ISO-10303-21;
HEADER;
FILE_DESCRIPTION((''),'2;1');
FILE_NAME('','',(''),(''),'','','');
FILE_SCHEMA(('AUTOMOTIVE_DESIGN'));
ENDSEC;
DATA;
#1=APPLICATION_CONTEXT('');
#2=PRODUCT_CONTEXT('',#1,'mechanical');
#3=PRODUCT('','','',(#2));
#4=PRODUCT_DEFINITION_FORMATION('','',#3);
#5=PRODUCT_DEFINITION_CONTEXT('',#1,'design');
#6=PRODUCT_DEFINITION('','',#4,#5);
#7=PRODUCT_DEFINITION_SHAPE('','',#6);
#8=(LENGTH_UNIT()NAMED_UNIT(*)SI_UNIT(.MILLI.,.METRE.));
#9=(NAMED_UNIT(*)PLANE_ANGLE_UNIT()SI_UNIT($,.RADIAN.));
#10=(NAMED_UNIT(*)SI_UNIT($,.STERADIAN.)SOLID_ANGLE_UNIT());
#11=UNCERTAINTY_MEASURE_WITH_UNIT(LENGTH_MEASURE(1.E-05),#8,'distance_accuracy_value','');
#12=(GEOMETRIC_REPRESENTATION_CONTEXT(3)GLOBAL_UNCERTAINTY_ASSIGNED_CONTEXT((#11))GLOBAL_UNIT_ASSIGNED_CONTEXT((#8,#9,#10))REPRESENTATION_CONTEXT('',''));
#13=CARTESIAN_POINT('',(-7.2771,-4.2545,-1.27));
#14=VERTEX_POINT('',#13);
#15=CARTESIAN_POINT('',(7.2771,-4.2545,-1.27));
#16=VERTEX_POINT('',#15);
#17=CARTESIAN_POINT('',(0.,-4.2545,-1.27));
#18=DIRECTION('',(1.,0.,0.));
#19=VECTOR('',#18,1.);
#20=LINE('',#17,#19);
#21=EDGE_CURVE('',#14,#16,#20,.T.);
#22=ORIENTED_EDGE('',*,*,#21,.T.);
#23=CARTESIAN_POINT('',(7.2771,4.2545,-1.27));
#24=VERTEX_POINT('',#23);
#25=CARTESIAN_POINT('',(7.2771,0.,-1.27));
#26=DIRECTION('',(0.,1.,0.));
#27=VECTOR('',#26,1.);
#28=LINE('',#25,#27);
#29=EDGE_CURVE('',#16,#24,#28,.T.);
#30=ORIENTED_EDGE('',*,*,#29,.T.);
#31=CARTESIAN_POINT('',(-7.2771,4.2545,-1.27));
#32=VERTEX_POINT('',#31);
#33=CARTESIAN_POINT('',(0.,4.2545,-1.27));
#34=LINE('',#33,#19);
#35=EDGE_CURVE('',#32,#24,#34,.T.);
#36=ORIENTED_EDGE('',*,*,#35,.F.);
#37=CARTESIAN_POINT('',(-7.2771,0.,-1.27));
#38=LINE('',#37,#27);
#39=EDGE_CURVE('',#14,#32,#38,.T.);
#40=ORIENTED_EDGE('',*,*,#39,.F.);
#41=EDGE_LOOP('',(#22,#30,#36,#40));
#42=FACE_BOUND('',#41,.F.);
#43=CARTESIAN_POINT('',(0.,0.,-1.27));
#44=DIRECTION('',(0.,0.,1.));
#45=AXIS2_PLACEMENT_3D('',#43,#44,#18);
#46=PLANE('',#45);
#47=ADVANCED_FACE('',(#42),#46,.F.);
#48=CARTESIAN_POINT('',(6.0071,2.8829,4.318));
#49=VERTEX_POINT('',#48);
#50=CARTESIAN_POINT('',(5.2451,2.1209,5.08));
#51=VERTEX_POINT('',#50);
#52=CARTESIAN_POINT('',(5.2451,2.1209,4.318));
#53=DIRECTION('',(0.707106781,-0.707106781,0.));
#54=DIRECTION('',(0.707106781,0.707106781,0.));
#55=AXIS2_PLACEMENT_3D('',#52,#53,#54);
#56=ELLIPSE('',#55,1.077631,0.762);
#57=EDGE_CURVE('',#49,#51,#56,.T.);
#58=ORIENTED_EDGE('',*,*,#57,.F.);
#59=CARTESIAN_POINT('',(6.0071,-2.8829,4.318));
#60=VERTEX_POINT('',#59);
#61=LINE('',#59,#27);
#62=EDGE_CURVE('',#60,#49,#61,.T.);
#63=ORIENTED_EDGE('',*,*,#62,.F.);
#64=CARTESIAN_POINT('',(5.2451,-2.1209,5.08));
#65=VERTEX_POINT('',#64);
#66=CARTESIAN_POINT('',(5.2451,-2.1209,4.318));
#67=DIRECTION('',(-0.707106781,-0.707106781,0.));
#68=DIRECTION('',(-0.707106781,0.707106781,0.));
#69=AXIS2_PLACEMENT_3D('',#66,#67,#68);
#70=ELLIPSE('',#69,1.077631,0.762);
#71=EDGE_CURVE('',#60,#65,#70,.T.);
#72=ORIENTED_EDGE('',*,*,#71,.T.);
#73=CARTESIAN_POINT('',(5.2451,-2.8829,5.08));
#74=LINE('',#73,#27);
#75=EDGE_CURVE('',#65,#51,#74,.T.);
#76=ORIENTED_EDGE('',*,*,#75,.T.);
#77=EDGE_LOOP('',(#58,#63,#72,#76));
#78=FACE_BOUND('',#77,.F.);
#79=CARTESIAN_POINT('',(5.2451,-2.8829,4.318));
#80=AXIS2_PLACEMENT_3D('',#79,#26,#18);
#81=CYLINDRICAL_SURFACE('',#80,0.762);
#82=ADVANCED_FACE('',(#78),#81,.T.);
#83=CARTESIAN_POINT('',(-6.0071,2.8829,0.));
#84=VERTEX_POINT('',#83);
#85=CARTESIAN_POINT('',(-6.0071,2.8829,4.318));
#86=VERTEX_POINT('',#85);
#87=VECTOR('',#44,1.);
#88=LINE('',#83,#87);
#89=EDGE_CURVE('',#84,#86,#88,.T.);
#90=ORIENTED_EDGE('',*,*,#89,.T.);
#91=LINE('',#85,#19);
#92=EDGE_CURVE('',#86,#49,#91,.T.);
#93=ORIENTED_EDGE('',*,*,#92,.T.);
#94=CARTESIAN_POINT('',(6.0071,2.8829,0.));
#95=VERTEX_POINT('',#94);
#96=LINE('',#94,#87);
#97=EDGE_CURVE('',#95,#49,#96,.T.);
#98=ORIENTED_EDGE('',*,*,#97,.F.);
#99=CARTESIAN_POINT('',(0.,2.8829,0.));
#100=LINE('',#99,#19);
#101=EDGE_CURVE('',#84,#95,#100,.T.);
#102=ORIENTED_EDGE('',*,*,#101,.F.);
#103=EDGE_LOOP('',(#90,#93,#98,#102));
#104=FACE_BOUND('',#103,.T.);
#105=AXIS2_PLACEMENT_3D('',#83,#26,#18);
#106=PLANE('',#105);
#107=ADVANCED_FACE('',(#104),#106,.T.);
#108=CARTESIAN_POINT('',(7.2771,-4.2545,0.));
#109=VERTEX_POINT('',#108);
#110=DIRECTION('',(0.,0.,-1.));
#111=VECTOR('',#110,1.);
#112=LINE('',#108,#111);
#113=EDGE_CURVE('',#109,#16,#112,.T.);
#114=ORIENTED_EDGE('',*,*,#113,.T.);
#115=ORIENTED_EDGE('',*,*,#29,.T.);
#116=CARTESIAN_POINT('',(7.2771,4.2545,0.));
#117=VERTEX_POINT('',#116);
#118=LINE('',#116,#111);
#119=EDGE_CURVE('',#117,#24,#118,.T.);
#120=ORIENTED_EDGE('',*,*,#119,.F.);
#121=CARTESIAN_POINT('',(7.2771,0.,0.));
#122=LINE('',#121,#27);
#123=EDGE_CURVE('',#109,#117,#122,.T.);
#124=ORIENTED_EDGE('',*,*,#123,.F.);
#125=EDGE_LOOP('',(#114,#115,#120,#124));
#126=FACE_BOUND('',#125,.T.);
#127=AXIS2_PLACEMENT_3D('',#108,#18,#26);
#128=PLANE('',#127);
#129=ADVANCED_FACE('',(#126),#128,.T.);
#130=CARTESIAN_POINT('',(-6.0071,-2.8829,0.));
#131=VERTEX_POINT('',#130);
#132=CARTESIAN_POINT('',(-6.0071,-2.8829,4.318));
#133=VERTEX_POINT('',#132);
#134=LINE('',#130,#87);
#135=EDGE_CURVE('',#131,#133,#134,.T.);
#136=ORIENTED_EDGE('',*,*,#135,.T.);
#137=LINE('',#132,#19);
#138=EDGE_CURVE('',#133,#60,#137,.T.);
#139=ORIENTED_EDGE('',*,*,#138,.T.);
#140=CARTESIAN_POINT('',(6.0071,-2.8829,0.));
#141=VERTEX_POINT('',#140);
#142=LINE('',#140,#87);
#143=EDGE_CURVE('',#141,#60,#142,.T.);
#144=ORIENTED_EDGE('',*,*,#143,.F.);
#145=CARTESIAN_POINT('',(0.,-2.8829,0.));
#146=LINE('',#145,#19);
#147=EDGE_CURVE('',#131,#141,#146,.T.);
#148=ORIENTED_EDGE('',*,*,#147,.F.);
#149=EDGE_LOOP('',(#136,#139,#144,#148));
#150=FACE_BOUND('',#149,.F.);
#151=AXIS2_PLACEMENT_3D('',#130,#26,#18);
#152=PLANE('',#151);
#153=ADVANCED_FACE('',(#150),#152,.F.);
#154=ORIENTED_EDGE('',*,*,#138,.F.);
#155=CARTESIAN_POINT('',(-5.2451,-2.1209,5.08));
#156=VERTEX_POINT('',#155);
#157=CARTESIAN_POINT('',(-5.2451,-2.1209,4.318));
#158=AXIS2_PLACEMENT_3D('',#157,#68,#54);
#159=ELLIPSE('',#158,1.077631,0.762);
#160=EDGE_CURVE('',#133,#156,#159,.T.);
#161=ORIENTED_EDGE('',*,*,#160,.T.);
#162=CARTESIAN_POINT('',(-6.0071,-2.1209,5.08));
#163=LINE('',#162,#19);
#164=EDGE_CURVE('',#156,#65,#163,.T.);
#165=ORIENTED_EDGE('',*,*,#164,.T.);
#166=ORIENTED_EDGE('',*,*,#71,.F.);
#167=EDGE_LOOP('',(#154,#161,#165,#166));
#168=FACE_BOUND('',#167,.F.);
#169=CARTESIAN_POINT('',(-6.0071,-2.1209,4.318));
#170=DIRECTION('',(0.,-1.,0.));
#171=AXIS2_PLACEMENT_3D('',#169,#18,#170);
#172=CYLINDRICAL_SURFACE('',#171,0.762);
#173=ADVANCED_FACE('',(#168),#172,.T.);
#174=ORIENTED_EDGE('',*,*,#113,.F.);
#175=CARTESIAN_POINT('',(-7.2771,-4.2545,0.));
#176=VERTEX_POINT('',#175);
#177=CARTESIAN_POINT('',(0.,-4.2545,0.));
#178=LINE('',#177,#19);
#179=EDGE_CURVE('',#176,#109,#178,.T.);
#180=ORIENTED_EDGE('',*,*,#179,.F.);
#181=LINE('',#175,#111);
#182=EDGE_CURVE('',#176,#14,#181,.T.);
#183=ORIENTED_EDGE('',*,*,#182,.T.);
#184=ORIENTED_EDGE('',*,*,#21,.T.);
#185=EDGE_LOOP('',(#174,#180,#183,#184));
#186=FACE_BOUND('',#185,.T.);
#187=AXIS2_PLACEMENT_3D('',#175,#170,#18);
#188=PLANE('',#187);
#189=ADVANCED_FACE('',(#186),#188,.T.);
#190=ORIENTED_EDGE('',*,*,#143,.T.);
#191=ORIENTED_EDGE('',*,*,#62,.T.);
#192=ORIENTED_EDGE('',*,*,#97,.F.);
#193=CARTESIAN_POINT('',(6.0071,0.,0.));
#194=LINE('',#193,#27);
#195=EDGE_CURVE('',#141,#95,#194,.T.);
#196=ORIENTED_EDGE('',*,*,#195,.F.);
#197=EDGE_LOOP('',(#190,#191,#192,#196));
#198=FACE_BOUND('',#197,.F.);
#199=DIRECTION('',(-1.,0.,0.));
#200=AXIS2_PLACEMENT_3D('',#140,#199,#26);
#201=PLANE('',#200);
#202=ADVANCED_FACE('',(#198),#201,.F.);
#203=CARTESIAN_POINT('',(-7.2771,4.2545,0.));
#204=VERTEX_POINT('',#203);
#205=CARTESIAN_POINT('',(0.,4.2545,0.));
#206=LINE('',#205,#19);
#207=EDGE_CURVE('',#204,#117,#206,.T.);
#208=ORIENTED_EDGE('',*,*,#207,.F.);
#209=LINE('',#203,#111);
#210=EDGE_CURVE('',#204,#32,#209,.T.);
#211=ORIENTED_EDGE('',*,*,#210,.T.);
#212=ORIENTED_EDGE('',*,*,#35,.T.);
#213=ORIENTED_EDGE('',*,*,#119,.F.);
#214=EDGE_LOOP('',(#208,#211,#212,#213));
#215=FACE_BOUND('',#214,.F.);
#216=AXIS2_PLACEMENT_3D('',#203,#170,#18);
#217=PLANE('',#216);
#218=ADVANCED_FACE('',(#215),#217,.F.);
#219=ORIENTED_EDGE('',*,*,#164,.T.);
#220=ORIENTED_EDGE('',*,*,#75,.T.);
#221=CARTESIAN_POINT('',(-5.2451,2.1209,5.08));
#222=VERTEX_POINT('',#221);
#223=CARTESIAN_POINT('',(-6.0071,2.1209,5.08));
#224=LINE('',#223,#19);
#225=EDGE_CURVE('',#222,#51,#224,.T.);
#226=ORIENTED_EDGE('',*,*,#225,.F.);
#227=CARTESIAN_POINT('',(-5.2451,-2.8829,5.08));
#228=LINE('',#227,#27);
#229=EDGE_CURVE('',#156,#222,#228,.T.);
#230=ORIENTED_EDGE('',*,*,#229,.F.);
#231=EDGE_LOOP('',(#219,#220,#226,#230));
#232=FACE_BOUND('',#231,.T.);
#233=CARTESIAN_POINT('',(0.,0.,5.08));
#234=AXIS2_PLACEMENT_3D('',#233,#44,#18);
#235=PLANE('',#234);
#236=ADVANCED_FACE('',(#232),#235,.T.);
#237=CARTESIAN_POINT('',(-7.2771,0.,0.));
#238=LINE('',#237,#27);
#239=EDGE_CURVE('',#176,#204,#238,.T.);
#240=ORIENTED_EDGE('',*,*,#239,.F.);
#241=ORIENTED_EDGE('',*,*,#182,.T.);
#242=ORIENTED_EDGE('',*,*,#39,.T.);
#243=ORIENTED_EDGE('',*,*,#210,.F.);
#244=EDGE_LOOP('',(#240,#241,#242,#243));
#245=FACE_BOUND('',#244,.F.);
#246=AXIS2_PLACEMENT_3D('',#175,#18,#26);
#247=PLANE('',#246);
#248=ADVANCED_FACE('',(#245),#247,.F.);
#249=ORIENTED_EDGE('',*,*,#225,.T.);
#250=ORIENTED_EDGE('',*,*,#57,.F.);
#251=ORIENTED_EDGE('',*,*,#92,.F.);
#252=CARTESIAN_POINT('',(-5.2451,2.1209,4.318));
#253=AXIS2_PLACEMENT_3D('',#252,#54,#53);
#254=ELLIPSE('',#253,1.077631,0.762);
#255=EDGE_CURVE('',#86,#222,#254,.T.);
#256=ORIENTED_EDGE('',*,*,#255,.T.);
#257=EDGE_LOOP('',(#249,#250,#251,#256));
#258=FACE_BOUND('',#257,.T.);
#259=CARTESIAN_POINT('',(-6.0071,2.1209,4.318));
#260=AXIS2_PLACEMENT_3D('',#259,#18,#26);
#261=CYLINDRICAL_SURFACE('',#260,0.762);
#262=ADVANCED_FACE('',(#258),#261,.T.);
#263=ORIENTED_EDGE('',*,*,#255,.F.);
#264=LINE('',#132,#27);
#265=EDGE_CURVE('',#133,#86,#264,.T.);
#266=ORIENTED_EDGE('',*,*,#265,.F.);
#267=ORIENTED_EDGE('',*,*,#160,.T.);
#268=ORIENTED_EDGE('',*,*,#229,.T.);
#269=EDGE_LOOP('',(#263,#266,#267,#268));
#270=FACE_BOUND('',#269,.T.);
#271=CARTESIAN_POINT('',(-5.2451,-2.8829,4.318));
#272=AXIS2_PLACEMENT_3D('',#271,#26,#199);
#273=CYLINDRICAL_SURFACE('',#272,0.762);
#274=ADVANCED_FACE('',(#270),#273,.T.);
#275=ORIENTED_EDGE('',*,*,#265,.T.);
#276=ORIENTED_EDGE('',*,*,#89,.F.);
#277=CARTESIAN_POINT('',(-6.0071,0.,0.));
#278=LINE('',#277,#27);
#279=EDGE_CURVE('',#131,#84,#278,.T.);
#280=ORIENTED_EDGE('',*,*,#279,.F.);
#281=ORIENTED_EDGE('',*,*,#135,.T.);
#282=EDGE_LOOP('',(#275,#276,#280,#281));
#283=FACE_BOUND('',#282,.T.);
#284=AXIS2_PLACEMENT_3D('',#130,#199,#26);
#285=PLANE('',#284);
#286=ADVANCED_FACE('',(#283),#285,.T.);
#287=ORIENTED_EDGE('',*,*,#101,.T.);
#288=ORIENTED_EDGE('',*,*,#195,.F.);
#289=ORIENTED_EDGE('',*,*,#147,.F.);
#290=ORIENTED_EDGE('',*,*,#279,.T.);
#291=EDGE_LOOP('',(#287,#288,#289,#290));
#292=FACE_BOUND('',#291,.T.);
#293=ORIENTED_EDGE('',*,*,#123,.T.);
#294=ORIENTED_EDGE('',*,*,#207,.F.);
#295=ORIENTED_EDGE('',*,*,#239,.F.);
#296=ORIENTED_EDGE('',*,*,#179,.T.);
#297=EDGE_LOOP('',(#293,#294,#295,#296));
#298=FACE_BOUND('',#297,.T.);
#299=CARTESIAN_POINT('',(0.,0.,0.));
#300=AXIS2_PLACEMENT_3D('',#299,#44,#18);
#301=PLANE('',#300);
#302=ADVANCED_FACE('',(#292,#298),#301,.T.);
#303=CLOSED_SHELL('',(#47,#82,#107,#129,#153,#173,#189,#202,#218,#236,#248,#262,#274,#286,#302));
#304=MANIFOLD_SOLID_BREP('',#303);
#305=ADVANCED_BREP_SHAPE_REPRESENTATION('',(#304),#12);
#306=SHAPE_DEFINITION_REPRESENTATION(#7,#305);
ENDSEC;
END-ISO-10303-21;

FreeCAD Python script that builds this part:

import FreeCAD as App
import Part
import Sketcher
Q = App.Units.Quantity


def edges_at(feature, points):
    """Names of the edges that pass closest to the given points."""
    edges = feature.Shape.Edges
    near = lambda p: min(range(len(edges)), key=lambda i: edges[i].distToShape(Part.Vertex(*p))[0])
    return sorted({f"Edge{near(p) + 1}" for p in points})

doc = App.newDocument("Part")
params = doc.addObject("Spreadsheet::Sheet", "Params")
for row, (alias, value) in enumerate([
    ("sketch1_width", "0.473 in"),
    ("sketch1_height", "0.227 in"),
    ("pad1_length", "0.2 in"),
    ("sketch2_width", "0.573 in"),
    ("sketch2_height", "0.335 in"),
    ("pad2_length", "0.05 in"),
    ("fillet_radius", "0.03 in"),
], start=1):
    params.set(f"A{row}", alias)
    params.set(f"B{row}", "=" + value)
    params.setAlias(f"B{row}", alias)

body = doc.addObject("PartDesign::Body", "Body")

sketch1 = body.newObject("Sketcher::SketchObject", "Sketch")
sketch1.AttachmentSupport = (doc.getObject("XY_Plane"), [""])
sketch1.MapMode = "FlatFace"
sketch1.addGeometry([
    Part.LineSegment(App.Vector(-6.0071, 2.8829, 0), App.Vector(-6.0071, -2.8829, 0)),
    Part.LineSegment(App.Vector(-6.0071, -2.8829, 0), App.Vector(6.0071, -2.8829, 0)),
    Part.LineSegment(App.Vector(6.0071, -2.8829, 0), App.Vector(6.0071, 2.8829, 0)),
    Part.LineSegment(App.Vector(6.0071, 2.8829, 0), App.Vector(-6.0071, 2.8829, 0)),
], False)
sketch1.addConstraint([
    Sketcher.Constraint("Coincident", 0, 2, 1, 1),
    Sketcher.Constraint("Coincident", 1, 2, 2, 1),
    Sketcher.Constraint("Coincident", 2, 2, 3, 1),
    Sketcher.Constraint("Coincident", 3, 2, 0, 1),
    Sketcher.Constraint("Vertical", 0),
    Sketcher.Constraint("Horizontal", 1),
    Sketcher.Constraint("Vertical", 2),
    Sketcher.Constraint("Horizontal", 3),
    Sketcher.Constraint("Symmetric", 0, 2, 2, 2, -1, 1),
    Sketcher.Constraint("DistanceX", 1, 1, 1, 2, Q("0.473 in")),
    Sketcher.Constraint("DistanceY", 0, 2, 0, 1, Q("0.227 in")),
])
sketch1.setExpression("Constraints[9]", "Params.sketch1_width")
sketch1.setExpression("Constraints[10]", "Params.sketch1_height")
pad1 = body.newObject("PartDesign::Pad", "Pad")
pad1.Profile = sketch1
pad1.setExpression("Length", "Params.pad1_length")

sketch2 = body.newObject("Sketcher::SketchObject", "Sketch001")
sketch2.AttachmentSupport = (doc.getObject("XY_Plane"), [""])
sketch2.MapMode = "FlatFace"
sketch2.addGeometry([
    Part.LineSegment(App.Vector(-7.2771, 4.2545, 0), App.Vector(-7.2771, -4.2545, 0)),
    Part.LineSegment(App.Vector(-7.2771, -4.2545, 0), App.Vector(7.2771, -4.2545, 0)),
    Part.LineSegment(App.Vector(7.2771, -4.2545, 0), App.Vector(7.2771, 4.2545, 0)),
    Part.LineSegment(App.Vector(7.2771, 4.2545, 0), App.Vector(-7.2771, 4.2545, 0)),
], False)
sketch2.addConstraint([
    Sketcher.Constraint("Coincident", 0, 2, 1, 1),
    Sketcher.Constraint("Coincident", 1, 2, 2, 1),
    Sketcher.Constraint("Coincident", 2, 2, 3, 1),
    Sketcher.Constraint("Coincident", 3, 2, 0, 1),
    Sketcher.Constraint("Vertical", 0),
    Sketcher.Constraint("Horizontal", 1),
    Sketcher.Constraint("Vertical", 2),
    Sketcher.Constraint("Horizontal", 3),
    Sketcher.Constraint("Symmetric", 0, 2, 2, 2, -1, 1),
    Sketcher.Constraint("DistanceX", 1, 1, 1, 2, Q("0.573 in")),
    Sketcher.Constraint("DistanceY", 0, 2, 0, 1, Q("0.335 in")),
])
sketch2.setExpression("Constraints[9]", "Params.sketch2_width")
sketch2.setExpression("Constraints[10]", "Params.sketch2_height")
pad2 = body.newObject("PartDesign::Pad", "Pad001")
pad2.Profile = sketch2
pad2.setExpression("Length", "Params.pad2_length")
pad2.Reversed = True
doc.recompute()

fillet = body.newObject("PartDesign::Fillet", "Fillet")
fillet.Base = (pad2, edges_at(pad2, [
    (6.007, 0, 5.08),
    (0, 2.883, 5.08),
    (-6.007, 0, 5.08),
    (0, -2.883, 5.08),
]))
fillet.setExpression("Radius", "Params.fillet_radius")

doc.recompute()
